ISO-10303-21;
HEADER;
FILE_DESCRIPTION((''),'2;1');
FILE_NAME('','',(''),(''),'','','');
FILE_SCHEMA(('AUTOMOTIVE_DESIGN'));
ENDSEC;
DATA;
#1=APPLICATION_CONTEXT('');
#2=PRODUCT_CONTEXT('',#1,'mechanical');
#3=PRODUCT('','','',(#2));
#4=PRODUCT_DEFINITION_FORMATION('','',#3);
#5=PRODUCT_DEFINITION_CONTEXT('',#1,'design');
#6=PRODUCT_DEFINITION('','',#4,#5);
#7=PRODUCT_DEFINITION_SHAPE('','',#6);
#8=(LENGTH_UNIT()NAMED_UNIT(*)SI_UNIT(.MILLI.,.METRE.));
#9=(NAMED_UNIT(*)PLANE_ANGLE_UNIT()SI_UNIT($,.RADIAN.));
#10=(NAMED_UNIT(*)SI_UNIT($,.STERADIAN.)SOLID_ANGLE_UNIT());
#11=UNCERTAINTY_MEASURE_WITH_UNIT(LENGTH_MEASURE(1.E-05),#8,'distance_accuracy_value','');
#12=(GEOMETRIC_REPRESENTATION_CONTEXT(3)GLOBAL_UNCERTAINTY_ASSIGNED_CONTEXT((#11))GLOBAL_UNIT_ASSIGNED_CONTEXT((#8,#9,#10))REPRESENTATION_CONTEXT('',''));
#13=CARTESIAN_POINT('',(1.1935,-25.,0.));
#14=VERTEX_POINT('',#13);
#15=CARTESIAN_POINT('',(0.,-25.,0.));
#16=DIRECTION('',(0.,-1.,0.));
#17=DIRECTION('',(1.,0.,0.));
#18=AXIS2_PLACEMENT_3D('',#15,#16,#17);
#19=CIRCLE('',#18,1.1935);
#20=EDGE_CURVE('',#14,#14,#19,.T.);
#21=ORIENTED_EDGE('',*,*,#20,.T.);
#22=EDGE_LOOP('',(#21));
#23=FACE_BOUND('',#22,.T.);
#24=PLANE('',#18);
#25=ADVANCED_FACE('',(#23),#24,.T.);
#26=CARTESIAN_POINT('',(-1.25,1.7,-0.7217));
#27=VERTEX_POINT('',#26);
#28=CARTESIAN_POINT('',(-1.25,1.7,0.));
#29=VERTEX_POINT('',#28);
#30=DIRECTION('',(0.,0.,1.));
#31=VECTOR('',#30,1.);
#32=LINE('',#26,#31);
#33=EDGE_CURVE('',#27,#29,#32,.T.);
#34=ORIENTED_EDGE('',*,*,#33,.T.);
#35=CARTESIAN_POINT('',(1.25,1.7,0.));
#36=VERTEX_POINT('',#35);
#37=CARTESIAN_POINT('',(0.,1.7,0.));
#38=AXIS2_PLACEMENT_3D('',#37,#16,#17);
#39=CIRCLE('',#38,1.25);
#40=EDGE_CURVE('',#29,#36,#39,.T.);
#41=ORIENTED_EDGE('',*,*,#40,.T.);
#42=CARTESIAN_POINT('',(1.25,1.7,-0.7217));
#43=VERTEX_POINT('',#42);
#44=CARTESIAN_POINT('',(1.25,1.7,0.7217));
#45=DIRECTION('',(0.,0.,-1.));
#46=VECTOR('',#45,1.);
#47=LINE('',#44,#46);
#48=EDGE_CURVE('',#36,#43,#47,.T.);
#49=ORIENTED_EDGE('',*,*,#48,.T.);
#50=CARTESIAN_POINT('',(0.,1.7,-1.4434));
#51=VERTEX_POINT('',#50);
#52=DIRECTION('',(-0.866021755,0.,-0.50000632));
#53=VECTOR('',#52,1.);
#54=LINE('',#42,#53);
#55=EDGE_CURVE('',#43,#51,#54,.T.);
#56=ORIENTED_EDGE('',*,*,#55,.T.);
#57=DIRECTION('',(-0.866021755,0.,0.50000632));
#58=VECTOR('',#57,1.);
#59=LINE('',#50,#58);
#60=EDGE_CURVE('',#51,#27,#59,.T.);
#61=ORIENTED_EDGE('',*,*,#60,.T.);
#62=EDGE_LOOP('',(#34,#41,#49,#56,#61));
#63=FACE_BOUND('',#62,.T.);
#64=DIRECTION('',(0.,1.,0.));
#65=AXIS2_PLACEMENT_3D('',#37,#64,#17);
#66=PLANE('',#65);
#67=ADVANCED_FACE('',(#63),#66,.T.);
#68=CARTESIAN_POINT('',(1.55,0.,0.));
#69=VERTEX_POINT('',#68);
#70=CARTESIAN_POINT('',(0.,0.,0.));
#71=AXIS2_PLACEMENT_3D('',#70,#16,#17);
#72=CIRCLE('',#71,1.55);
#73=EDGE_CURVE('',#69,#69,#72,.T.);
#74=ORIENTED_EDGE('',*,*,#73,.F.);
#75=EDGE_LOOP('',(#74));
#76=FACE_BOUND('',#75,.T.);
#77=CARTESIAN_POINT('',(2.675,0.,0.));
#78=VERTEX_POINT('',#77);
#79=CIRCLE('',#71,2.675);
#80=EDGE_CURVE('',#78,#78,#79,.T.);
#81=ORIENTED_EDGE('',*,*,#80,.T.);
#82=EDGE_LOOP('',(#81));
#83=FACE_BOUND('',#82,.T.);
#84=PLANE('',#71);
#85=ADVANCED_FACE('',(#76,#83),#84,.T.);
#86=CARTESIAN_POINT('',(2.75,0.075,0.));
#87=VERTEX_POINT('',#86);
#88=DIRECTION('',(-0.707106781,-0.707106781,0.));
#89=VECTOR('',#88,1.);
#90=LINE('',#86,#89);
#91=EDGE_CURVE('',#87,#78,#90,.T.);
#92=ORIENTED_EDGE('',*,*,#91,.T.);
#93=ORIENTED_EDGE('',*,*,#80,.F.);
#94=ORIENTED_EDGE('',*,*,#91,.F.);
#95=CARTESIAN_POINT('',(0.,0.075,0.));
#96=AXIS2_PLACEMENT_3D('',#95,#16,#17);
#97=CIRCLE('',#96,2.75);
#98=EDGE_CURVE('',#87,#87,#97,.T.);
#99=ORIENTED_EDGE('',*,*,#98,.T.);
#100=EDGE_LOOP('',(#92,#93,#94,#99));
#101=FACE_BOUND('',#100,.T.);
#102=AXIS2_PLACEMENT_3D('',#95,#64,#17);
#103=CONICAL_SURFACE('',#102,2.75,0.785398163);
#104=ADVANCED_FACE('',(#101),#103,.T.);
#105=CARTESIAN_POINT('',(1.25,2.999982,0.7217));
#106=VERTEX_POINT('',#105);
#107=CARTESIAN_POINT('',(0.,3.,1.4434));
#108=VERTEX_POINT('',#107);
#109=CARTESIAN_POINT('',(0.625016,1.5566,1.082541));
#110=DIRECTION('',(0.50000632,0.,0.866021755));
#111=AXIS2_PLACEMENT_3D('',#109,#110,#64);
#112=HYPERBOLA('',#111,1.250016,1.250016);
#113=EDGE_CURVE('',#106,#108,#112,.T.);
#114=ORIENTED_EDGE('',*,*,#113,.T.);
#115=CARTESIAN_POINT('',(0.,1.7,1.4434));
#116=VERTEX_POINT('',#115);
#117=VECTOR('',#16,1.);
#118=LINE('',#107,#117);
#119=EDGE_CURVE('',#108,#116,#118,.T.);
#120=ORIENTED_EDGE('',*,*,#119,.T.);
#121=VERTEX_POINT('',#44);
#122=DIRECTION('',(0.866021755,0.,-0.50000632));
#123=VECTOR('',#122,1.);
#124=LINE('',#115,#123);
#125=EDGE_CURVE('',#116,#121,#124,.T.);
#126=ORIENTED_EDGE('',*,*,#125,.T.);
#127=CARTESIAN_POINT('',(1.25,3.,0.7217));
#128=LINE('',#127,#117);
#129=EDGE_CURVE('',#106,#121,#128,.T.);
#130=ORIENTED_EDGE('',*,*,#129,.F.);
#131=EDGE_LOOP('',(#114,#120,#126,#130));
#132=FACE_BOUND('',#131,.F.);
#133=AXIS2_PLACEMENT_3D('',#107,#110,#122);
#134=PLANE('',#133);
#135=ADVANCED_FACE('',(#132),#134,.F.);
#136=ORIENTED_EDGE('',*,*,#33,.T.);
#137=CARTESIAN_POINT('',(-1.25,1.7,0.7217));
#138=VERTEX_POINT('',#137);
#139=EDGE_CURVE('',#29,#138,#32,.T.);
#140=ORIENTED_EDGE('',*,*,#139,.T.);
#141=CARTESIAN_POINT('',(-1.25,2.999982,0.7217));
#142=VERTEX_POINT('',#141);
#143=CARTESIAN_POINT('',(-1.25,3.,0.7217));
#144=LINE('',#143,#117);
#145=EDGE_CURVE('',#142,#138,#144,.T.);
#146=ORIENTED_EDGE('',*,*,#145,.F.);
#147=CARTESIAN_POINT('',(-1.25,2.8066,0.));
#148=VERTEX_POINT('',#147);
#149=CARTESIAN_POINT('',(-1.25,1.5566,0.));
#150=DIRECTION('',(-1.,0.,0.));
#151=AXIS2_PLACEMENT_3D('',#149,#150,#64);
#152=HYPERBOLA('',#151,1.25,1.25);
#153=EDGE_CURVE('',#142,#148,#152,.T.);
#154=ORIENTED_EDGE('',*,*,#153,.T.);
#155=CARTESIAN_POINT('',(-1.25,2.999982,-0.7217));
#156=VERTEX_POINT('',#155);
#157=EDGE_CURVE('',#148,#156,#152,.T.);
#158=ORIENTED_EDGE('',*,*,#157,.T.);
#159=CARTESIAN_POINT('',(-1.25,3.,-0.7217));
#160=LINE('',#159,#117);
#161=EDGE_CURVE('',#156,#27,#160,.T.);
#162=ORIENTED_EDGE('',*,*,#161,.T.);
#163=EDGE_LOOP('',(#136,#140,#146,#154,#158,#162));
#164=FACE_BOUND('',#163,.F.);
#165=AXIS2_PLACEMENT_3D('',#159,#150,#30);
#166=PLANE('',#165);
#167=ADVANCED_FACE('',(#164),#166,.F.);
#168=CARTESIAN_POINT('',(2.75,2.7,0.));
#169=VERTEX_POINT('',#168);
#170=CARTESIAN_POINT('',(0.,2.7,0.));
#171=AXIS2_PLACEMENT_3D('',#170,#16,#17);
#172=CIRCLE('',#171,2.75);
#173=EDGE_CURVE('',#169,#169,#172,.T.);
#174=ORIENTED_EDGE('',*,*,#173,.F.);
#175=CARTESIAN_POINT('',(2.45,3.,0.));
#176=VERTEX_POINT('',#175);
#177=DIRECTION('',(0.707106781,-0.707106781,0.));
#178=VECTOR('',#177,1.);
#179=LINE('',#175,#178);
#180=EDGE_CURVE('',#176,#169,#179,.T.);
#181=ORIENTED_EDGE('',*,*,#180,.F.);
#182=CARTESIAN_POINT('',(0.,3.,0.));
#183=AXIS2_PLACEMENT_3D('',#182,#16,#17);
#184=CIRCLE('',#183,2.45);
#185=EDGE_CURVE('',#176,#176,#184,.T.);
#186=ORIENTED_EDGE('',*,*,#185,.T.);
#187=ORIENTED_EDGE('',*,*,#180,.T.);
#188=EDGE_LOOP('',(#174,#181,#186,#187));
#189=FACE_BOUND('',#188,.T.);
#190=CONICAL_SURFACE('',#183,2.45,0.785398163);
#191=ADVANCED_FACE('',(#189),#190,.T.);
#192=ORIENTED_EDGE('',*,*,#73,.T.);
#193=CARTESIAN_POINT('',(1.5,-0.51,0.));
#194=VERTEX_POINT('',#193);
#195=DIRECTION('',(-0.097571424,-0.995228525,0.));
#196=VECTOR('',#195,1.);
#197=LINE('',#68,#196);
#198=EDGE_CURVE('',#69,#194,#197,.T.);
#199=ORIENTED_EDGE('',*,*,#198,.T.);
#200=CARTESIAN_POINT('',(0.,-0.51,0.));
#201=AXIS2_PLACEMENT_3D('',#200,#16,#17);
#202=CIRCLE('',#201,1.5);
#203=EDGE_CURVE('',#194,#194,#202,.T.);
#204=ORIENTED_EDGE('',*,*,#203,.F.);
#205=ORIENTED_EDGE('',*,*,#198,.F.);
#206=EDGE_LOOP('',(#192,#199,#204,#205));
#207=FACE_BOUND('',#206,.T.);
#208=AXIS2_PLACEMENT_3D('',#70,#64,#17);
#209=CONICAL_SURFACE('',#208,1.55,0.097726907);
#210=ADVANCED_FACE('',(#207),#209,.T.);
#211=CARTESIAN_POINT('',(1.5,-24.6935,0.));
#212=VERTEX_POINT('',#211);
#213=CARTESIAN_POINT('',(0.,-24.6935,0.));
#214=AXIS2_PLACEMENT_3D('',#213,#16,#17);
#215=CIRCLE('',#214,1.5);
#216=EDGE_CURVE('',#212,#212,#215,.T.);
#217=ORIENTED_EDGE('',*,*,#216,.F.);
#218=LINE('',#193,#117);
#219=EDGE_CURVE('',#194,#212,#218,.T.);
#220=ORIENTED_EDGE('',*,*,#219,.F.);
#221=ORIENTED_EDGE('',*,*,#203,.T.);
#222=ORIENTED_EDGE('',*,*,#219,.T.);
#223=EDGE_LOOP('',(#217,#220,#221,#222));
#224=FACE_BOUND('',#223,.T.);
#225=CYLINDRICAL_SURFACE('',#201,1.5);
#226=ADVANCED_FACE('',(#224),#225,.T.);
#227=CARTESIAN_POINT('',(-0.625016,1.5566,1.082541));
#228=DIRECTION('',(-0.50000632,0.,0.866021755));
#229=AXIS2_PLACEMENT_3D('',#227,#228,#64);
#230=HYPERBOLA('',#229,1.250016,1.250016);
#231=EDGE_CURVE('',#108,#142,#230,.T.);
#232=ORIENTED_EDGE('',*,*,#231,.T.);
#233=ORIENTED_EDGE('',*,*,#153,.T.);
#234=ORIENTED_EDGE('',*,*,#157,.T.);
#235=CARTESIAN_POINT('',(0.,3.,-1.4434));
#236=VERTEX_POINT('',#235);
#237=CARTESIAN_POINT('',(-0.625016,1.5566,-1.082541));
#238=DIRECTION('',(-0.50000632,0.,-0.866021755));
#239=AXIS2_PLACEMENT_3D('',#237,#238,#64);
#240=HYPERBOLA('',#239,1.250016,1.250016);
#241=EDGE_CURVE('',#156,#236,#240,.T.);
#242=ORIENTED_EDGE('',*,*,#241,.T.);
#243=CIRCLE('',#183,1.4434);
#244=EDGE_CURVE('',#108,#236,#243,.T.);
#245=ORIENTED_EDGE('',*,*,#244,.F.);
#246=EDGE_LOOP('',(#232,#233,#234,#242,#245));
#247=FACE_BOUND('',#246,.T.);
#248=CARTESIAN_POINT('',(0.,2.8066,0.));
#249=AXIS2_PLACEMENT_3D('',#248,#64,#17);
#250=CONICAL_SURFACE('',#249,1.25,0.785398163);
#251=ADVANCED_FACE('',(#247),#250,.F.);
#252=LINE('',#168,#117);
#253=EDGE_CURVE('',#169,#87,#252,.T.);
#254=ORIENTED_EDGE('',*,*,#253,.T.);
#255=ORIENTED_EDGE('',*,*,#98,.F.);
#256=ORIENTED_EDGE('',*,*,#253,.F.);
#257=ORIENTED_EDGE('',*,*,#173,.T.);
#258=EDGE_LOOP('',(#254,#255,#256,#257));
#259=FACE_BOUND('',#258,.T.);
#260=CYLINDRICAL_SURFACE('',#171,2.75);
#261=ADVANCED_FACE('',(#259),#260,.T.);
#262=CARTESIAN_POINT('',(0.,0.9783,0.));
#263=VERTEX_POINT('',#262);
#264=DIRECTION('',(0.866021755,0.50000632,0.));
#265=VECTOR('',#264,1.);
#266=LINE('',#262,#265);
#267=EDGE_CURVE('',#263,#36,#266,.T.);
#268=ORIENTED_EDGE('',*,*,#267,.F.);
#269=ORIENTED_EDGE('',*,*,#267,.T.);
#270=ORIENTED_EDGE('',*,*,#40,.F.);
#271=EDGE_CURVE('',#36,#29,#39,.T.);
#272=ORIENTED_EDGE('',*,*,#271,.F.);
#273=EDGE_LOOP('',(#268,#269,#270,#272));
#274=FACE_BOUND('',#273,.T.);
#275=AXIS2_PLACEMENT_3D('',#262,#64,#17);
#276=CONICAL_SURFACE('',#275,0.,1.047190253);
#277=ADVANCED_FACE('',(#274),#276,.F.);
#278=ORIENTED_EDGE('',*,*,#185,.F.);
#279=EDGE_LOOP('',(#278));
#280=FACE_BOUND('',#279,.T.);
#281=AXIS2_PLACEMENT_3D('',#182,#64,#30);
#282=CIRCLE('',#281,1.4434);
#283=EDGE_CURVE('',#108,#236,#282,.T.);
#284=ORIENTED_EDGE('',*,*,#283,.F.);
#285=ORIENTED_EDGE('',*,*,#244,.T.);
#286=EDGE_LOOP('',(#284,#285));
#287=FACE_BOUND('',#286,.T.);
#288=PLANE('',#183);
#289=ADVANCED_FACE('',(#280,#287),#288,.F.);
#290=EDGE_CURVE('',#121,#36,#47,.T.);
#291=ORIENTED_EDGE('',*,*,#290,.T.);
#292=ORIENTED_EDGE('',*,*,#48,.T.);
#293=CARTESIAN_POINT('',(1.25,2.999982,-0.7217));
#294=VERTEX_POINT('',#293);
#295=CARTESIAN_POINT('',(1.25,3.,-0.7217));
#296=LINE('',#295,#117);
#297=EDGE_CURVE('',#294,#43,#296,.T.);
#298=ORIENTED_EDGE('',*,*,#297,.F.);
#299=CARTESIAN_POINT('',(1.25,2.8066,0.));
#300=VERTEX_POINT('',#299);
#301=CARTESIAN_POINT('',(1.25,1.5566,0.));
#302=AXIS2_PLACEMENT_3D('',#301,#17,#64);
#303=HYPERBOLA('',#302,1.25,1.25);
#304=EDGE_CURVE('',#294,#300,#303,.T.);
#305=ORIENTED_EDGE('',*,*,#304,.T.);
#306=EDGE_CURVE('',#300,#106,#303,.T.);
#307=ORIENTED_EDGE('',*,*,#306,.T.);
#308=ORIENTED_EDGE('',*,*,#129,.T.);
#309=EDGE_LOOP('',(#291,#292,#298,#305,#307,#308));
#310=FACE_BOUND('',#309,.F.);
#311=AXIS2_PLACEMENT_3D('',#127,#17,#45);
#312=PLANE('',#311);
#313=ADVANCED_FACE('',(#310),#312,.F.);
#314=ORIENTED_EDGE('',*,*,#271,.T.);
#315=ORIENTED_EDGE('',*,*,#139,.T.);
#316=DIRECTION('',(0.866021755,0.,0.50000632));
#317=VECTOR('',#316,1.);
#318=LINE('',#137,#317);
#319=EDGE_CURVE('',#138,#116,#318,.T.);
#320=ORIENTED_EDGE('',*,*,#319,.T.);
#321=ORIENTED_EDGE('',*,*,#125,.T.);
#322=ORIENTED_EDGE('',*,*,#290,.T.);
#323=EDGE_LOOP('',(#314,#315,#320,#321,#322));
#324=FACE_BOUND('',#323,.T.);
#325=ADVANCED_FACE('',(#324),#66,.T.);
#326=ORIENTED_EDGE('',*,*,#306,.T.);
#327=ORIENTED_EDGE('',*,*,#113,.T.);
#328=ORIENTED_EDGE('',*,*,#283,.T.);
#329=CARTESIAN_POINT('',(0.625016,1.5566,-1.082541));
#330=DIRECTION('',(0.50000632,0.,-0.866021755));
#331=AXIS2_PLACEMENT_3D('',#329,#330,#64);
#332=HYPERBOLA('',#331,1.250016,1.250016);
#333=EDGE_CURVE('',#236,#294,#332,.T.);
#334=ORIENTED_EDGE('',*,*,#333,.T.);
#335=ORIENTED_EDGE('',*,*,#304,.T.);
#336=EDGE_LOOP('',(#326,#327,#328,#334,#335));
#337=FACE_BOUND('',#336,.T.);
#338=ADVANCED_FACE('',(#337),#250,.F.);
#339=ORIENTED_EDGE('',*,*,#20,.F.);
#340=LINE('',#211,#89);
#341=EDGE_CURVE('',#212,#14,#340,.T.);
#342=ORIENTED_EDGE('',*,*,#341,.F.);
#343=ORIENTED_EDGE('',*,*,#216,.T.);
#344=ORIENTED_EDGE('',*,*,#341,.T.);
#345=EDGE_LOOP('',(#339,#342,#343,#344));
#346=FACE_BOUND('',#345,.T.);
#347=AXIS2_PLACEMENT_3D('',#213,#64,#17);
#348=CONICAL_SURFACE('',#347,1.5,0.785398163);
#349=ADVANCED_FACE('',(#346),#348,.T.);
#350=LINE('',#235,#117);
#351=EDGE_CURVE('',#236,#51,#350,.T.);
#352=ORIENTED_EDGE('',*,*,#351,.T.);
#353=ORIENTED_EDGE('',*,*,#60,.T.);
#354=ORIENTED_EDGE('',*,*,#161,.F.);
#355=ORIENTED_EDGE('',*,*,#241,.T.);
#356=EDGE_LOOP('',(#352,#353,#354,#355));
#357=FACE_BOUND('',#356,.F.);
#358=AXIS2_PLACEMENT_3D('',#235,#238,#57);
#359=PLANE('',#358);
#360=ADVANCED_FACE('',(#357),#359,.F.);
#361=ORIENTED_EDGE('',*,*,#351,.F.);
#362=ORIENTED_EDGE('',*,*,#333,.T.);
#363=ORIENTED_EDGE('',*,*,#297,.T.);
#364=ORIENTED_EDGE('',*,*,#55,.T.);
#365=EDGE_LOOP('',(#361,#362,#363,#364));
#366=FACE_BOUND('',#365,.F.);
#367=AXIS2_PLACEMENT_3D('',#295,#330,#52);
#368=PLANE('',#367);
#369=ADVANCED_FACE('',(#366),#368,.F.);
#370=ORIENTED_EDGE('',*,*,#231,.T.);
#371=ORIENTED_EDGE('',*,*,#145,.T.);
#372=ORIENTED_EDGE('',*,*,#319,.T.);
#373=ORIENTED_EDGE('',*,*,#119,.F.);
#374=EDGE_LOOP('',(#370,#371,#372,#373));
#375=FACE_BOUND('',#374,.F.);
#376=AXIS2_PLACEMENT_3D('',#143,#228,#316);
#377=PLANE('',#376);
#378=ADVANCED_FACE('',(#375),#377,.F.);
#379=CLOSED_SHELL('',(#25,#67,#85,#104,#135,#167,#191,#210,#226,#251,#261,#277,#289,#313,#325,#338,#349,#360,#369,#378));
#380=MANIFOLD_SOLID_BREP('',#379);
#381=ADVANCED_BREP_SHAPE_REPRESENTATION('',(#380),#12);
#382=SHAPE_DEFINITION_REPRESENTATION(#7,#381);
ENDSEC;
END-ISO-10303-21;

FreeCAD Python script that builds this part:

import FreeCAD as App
import Part
import Sketcher
Q = App.Units.Quantity


def add_polygon(sketch, points):
    """Adds a closed chain of lines whose ends are joined by coincident constraints."""
    first, n = sketch.GeometryCount, len(points)
    for a, b in zip(points, points[1:] + points[:1]):
        sketch.addGeometry(Part.LineSegment(App.Vector(*a, 0), App.Vector(*b, 0)), False)
    for i in range(n):
        sketch.addConstraint(Sketcher.Constraint("Coincident", first + i, 2, first + (i + 1) % n, 1))

doc = App.newDocument("Part")
body = doc.addObject("PartDesign::Body", "Body")

# Sketch on XY plane
sketch1 = body.newObject("Sketcher::SketchObject", "Sketch")
sketch1.AttachmentSupport = (doc.getObject("XY_Plane"), [""])
sketch1.MapMode = "FlatFace"
add_polygon(sketch1, [(0, 0.9783), (0, -25), (1.1935, -25), (1.5, -24.6935), (1.5, -0.51), (1.55, 0), (2.675, 0), (2.75, 0.075), (2.75, 2.7), (2.45, 3), (1.4434, 3), (1.25, 2.8066), (1.25, 1.7)])  # lines 0-12
sketch1.addConstraint([
    Sketcher.Constraint("Vertical", 0),
    Sketcher.Constraint("Horizontal", 1),
    Sketcher.Constraint("Vertical", 3),
    Sketcher.Constraint("Horizontal", 5),
    Sketcher.Constraint("Vertical", 7),
    Sketcher.Constraint("Horizontal", 9),
    Sketcher.Constraint("Vertical", 11),
    Sketcher.Constraint("PointOnObject", 0, 2, -2),
    Sketcher.Constraint("PointOnObject", 4, 2, -1),
    Sketcher.Constraint("Parallel", 2, 6),
    Sketcher.Constraint("Perpendicular", 6, 8),
    Sketcher.Constraint("Perpendicular", 8, 10),
    Sketcher.Constraint("Angle", 2, Q("45 deg")),
    Sketcher.Constraint("Angle", 12, Q("-149.9996 deg")),
    Sketcher.Constraint("DistanceY", 0, 2, -1, 1, Q("25 mm")),
    Sketcher.Constraint("DistanceY", -1, 1, 8, 2, Q("3 mm")),
    Sketcher.Constraint("Angle", 4, Q("84.4007 deg")),
    Sketcher.Constraint("DistanceY", 11, 2, 7, 2, Q("1 mm")),
    Sketcher.Constraint("DistanceX", -1, 1, 2, 2, Q("1.5 mm")),
    Sketcher.Constraint("DistanceY", -1, 1, 7, 2, Q("2.7 mm")),
    Sketcher.Constraint("DistanceX", 4, 2, 6, 2, Q("1.2 mm")),
    Sketcher.Constraint("DistanceX", 10, 2, 8, 2, Q("1.2 mm")),
    Sketcher.Constraint("DistanceX", 5, 1, 5, 2, Q("1.125 mm")),
    Sketcher.Constraint("DistanceY", 3, 2, -1, 1, Q("0.51 mm")),
    Sketcher.Constraint("DistanceX", 1, 1, 1, 2, Q("1.1935 mm")),
    Sketcher.Constraint("DistanceX", 9, 2, 9, 1, Q("1.0066 mm")),
])
revolution = body.newObject("PartDesign::Revolution", "Revolution")
revolution.Profile = sketch1
revolution.ReferenceAxis = (sketch1, ["V_Axis"])
revolution.Angle = 360

# Sketch on XZ plane
sketch2 = body.newObject("Sketcher::SketchObject", "Sketch001")
sketch2.AttachmentSupport = (doc.getObject("XZ_Plane"), [""])
sketch2.MapMode = "FlatFace"
sketch2.AttachmentOffset = App.Placement(App.Vector(0, 0, -3), App.Rotation())
add_polygon(sketch2, [(-1.25, -0.7217), (-1.25, 0.7217), (0, 1.4434), (1.25, 0.7217), (1.25, -0.7217), (0, -1.4434)])  # lines 0-5
sketch2.addConstraint([
    Sketcher.Constraint("Vertical", 0),
    Sketcher.Constraint("Vertical", 3),
    Sketcher.Constraint("Symmetric", 0, 2, 3, 2, -1, 1),
    Sketcher.Constraint("Symmetric", 1, 2, 4, 2, -1, 1),
    Sketcher.Constraint("PointOnObject", 1, 2, -2),
    Sketcher.Constraint("Parallel", 2, 5),
    Sketcher.Constraint("Horizontal", 0, 2, 2, 2),
    Sketcher.Constraint("Angle", 1, Q("30.0004 deg")),
    Sketcher.Constraint("DistanceX", 0, 2, 2, 2, Q("2.5 mm")),
    Sketcher.Constraint("DistanceY", 0, 1, 0, 2, Q("1.4434 mm")),
])
pocket1 = body.newObject("PartDesign::Pocket", "Pocket")
pocket1.Profile = sketch2
pocket1.Length = 1.3
pocket1.Reversed = True

doc.recompute()
